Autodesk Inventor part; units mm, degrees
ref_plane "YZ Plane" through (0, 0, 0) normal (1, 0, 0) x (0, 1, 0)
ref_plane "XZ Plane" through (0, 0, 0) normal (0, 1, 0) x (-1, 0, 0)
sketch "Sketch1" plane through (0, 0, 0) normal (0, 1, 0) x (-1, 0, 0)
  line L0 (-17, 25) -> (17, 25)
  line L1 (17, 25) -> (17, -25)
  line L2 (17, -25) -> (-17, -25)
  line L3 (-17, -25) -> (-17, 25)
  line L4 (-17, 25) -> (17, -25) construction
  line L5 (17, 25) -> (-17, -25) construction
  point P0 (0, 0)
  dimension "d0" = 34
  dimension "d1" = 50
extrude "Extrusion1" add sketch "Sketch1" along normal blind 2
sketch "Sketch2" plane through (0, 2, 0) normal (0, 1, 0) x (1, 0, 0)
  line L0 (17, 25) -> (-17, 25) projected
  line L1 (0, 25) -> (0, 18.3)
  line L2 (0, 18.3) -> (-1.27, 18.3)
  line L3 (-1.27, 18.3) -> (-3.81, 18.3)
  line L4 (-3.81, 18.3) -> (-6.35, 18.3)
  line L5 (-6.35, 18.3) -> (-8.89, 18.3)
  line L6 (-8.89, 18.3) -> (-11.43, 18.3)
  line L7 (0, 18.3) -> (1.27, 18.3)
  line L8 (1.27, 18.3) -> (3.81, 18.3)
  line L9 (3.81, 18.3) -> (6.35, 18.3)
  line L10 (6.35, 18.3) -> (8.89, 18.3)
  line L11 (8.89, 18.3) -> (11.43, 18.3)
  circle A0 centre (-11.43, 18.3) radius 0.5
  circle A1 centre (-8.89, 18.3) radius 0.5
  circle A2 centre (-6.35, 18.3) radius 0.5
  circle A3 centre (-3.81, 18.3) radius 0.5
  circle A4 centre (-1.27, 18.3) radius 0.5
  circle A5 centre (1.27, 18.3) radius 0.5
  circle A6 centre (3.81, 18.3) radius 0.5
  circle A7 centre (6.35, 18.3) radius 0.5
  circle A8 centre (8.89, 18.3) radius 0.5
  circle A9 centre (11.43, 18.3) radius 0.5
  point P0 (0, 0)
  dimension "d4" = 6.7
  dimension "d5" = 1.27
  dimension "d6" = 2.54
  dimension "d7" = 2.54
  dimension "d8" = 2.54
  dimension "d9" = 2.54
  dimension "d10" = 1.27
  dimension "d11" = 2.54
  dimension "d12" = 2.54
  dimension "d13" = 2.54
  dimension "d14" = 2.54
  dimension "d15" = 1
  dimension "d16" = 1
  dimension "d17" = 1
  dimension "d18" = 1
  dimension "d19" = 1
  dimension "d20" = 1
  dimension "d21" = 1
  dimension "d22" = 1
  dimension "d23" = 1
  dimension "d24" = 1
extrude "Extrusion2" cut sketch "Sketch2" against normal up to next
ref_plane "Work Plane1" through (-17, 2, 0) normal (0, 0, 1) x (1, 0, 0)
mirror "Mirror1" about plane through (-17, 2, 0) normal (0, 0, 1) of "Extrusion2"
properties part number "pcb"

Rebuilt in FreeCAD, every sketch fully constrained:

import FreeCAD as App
import Part
import Sketcher

V = App.Vector
Q = App.Units.Quantity


def add_polygon(sketch, points):
    """Adds a closed chain of lines whose ends are joined by coincident constraints."""
    first, n = sketch.GeometryCount, len(points)
    for a, b in zip(points, points[1:] + points[:1]):
        sketch.addGeometry(Part.LineSegment(App.Vector(*a, 0), App.Vector(*b, 0)), False)
    for i in range(n):
        sketch.addConstraint(Sketcher.Constraint("Coincident", first + i, 2, first + (i + 1) % n, 1))

doc = App.newDocument("Part")
params = doc.addObject("Spreadsheet::Sheet", "Params")
for row, (alias, value) in enumerate([
    ("sketch1_width", "34 mm"),
    ("sketch1_height", "50 mm"),
    ("pad1_length", "2 mm"),
    ("sketch2_diameter", "1 mm"),
], start=1):
    params.set(f"A{row}", alias)
    params.set(f"B{row}", "=" + value)
    params.setAlias(f"B{row}", alias)

body = doc.addObject("PartDesign::Body", "Body")

sketch1 = doc.addObject("Sketcher::SketchObject", "Sketch")
body.addObject(sketch1)
sketch1.AttachmentSupport = (doc.XZ_Plane, [""])
sketch1.MapMode = "FlatFace"
add_polygon(sketch1, [(-17, 25), (17, 25), (17, -25), (-17, -25)])
sketch1.addConstraint(Sketcher.Constraint("Horizontal", 0))
sketch1.addConstraint(Sketcher.Constraint("Vertical", 1))
sketch1.addConstraint(Sketcher.Constraint("Horizontal", 2))
sketch1.addConstraint(Sketcher.Constraint("Vertical", 3))
sketch1.addConstraint(Sketcher.Constraint("Symmetric", 0, 2, 2, 2, -1, 1))
sketch1.addConstraint(Sketcher.Constraint("DistanceX", 0, 1, 0, 2, Q("34 mm")))
sketch1.addConstraint(Sketcher.Constraint("DistanceY", 1, 2, 1, 1, Q("50 mm")))
sketch1.setExpression("Constraints[9]", "Params.sketch1_width")
sketch1.setExpression("Constraints[10]", "Params.sketch1_height")
pad1 = doc.addObject("PartDesign::Pad", "Pad")
body.addObject(pad1)
pad1.Profile = sketch1
pad1.setExpression("Length", "Params.pad1_length")
pad1.Reversed = True

sketch2 = doc.addObject("Sketcher::SketchObject", "Sketch001")
body.addObject(sketch2)
sketch2.AttachmentSupport = (doc.XZ_Plane, [""])
sketch2.MapMode = "FlatFace"
sketch2.AttachmentOffset = App.Placement(V(0, 0, -2), App.Rotation())
sketch2.addGeometry(Part.Circle(V(-11.4, -18.3, 0), V(0, 0, 1), 0.5), False)
sketch2.addGeometry(Part.Circle(V(-8.9, -18.3, 0), V(0, 0, 1), 0.5), False)
sketch2.addGeometry(Part.Circle(V(-6.3, -18.3, 0), V(0, 0, 1), 0.5), False)
sketch2.addGeometry(Part.Circle(V(-3.8, -18.3, 0), V(0, 0, 1), 0.5), False)
sketch2.addGeometry(Part.Circle(V(-1.3, -18.3, 0), V(0, 0, 1), 0.5), False)
sketch2.addGeometry(Part.Circle(V(11.4, -18.3, 0), V(0, 0, 1), 0.5), False)
sketch2.addGeometry(Part.Circle(V(8.9, -18.3, 0), V(0, 0, 1), 0.5), False)
sketch2.addGeometry(Part.Circle(V(6.3, -18.3, 0), V(0, 0, 1), 0.5), False)
sketch2.addGeometry(Part.Circle(V(3.8, -18.3, 0), V(0, 0, 1), 0.5), False)
sketch2.addGeometry(Part.Circle(V(1.3, -18.3, 0), V(0, 0, 1), 0.5), False)
sketch2.addConstraint(Sketcher.Constraint("Equal", 0, 1))
sketch2.addConstraint(Sketcher.Constraint("Equal", 1, 2))
sketch2.addConstraint(Sketcher.Constraint("Equal", 2, 3))
sketch2.addConstraint(Sketcher.Constraint("Equal", 3, 4))
sketch2.addConstraint(Sketcher.Constraint("Equal", 4, 5))
sketch2.addConstraint(Sketcher.Constraint("Equal", 5, 6))
sketch2.addConstraint(Sketcher.Constraint("Equal", 6, 7))
sketch2.addConstraint(Sketcher.Constraint("Equal", 7, 8))
sketch2.addConstraint(Sketcher.Constraint("Equal", 8, 9))
sketch2.addConstraint(Sketcher.Constraint("Symmetric", 0, 3, 5, 3, -2))
sketch2.addConstraint(Sketcher.Constraint("Symmetric", 1, 3, 6, 3, -2))
sketch2.addConstraint(Sketcher.Constraint("Symmetric", 2, 3, 7, 3, -2))
sketch2.addConstraint(Sketcher.Constraint("Symmetric", 3, 3, 8, 3, -2))
sketch2.addConstraint(Sketcher.Constraint("Symmetric", 4, 3, 9, 3, -2))
sketch2.addConstraint(Sketcher.Constraint("Horizontal", 0, 3, 1, 3))
sketch2.addConstraint(Sketcher.Constraint("Horizontal", 1, 3, 2, 3))
sketch2.addConstraint(Sketcher.Constraint("Horizontal", 2, 3, 3, 3))
sketch2.addConstraint(Sketcher.Constraint("Horizontal", 3, 3, 4, 3))
sketch2.addConstraint(Sketcher.Constraint("Diameter", 0, Q("1 mm")))
sketch2.addConstraint(Sketcher.Constraint("DistanceX", 4, 3, -1, 1, Q("1.27 mm")))
sketch2.addConstraint(Sketcher.Constraint("DistanceX", 0, 3, 1, 3, Q("2.54 mm")))
sketch2.addConstraint(Sketcher.Constraint("DistanceX", 1, 3, 2, 3, Q("2.54 mm")))
sketch2.addConstraint(Sketcher.Constraint("DistanceX", 2, 3, 3, 3, Q("2.54 mm")))
sketch2.addConstraint(Sketcher.Constraint("DistanceX", 3, 3, 4, 3, Q("2.54 mm")))
sketch2.addConstraint(Sketcher.Constraint("DistanceY", 0, 3, -1, 1, Q("18.3 mm")))
sketch2.setExpression("Constraints[18]", "Params.sketch2_diameter")
pocket1 = doc.addObject("PartDesign::Pocket", "Pocket")
body.addObject(pocket1)
pocket1.Profile = sketch2
pocket1.Type = "UpToFirst"
pocket1.Reversed = True
doc.recompute()

mirrored = doc.addObject("PartDesign::Mirrored", "Mirrored")
body.addObject(mirrored)
mirrored.Originals = [pocket1]
mirrored.MirrorPlane = (doc.XY_Plane, [""])
body.Tip = mirrored

doc.recompute()
